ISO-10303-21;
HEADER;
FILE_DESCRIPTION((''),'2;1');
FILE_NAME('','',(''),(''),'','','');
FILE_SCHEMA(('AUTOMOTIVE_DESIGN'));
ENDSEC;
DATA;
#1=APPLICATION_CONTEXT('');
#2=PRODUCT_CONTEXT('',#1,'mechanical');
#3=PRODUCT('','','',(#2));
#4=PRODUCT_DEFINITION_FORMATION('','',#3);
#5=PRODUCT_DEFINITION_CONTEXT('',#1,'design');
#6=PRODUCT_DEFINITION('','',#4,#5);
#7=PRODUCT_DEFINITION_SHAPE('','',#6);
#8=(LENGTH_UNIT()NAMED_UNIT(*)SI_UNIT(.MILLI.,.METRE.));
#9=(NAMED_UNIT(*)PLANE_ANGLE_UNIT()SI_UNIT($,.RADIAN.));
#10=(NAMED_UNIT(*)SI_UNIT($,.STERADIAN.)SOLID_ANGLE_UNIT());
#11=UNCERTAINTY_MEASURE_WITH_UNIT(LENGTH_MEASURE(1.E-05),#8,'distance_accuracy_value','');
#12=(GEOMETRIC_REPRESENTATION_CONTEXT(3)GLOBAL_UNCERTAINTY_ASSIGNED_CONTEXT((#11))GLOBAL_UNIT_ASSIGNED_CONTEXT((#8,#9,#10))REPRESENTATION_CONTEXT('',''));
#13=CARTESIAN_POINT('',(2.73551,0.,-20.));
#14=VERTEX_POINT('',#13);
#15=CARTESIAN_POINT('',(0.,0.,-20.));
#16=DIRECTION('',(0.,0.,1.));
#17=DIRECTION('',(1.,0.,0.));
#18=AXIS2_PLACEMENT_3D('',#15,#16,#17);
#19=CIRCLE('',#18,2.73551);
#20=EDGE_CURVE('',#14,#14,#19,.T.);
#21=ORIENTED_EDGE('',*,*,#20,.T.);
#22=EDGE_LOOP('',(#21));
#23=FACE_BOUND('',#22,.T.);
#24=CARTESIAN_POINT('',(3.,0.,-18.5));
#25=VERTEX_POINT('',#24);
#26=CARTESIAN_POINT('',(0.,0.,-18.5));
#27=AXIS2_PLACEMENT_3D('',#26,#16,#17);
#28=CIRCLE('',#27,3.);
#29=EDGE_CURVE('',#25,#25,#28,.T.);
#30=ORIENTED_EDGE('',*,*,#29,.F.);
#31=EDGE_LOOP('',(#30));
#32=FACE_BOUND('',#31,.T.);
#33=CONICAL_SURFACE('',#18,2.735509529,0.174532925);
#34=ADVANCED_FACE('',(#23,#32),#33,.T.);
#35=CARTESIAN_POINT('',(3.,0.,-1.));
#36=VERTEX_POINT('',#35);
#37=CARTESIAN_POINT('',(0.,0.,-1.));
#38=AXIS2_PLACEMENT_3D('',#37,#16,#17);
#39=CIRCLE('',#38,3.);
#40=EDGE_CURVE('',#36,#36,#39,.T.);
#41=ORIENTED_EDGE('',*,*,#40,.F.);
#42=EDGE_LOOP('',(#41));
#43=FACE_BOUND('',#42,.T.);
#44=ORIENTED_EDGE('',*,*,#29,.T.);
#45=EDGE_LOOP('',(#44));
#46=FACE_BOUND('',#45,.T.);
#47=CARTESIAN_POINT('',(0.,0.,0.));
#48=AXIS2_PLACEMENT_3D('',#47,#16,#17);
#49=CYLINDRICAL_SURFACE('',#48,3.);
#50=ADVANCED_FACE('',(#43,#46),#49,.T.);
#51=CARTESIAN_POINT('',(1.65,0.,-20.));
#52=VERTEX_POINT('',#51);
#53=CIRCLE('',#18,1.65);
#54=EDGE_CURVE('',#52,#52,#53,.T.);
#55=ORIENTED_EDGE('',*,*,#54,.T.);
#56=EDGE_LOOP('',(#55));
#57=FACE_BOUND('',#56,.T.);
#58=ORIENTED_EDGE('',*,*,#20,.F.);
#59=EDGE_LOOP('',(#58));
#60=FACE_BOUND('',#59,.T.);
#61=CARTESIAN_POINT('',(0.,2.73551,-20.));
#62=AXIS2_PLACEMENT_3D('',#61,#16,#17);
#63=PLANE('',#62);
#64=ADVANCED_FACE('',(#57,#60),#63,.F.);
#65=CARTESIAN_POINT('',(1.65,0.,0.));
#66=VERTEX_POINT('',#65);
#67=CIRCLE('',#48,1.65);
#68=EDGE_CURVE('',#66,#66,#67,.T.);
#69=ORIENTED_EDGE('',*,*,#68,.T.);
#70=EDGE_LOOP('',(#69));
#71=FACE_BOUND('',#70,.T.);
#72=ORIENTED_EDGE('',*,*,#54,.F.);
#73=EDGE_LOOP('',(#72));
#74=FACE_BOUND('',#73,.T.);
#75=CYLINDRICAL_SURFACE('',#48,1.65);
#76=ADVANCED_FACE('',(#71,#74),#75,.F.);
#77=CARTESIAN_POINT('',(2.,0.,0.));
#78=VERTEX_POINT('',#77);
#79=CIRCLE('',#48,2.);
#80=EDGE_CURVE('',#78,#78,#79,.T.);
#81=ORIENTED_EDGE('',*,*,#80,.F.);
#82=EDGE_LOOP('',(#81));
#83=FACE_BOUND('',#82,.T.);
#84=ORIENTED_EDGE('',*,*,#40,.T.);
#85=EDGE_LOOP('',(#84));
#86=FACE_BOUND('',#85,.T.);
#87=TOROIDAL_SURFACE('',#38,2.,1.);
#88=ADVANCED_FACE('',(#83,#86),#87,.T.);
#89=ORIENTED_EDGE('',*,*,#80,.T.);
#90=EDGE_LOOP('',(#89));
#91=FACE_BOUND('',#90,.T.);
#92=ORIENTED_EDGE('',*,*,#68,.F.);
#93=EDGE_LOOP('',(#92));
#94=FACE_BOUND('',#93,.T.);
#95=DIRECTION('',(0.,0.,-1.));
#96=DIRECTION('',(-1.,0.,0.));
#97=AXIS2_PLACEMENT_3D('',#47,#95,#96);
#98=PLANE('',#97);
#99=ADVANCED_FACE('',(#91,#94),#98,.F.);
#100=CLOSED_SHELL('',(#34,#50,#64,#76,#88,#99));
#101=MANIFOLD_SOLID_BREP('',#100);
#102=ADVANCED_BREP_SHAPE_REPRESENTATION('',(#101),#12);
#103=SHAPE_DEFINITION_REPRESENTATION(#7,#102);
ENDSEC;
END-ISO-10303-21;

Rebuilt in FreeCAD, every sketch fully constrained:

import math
import FreeCAD as App
import Part
import Sketcher

V = App.Vector
Q = App.Units.Quantity

doc = App.newDocument("Part")
body = doc.addObject("PartDesign::Body", "Body")

# Sketch on YZ plane
sketch1 = doc.addObject("Sketcher::SketchObject", "Sketch")
body.addObject(sketch1)
sketch1.AttachmentSupport = (doc.YZ_Plane, [""])
sketch1.MapMode = "FlatFace"
sketch1.addGeometry(Part.LineSegment(V(2, 0, 0), V(0, 0, 0)), False)
sketch1.addGeometry(Part.LineSegment(V(0, 0, 0), V(0, -20, 0)), False)
sketch1.addGeometry(Part.LineSegment(V(0, -20, 0), V(2.7, -20, 0)), False)
sketch1.addGeometry(Part.LineSegment(V(2.7, -20, 0), V(3, -18.5, 0)), False)
sketch1.addGeometry(Part.LineSegment(V(3, -18.5, 0), V(3, -1, 0)), False)
sketch1.addGeometry(Part.ArcOfCircle(Part.Circle(V(2, -1, 0), V(0, 0, 1), 1), math.radians(0), math.radians(90)), False)
sketch1.addConstraint(Sketcher.Constraint("Coincident", 0, 2, 1, 1))
sketch1.addConstraint(Sketcher.Constraint("Coincident", 1, 2, 2, 1))
sketch1.addConstraint(Sketcher.Constraint("Coincident", 2, 2, 3, 1))
sketch1.addConstraint(Sketcher.Constraint("Coincident", 3, 2, 4, 1))
sketch1.addConstraint(Sketcher.Constraint("Tangent", 4, 2, 5, 1))
sketch1.addConstraint(Sketcher.Constraint("Tangent", 5, 2, 0, 1))
sketch1.addConstraint(Sketcher.Constraint("Horizontal", 0))
sketch1.addConstraint(Sketcher.Constraint("Vertical", 1))
sketch1.addConstraint(Sketcher.Constraint("Horizontal", 2))
sketch1.addConstraint(Sketcher.Constraint("Vertical", 4))
sketch1.addConstraint(Sketcher.Constraint("Coincident", 0, 2, -1, 1))
sketch1.addConstraint(Sketcher.Constraint("Radius", 5, 1.0))
sketch1.addConstraint(Sketcher.Constraint("DistanceX", 0, 2, 0, 1, 2.0))
sketch1.addConstraint(Sketcher.Constraint("DistanceY", 1, 2, 1, 1, 20.0))
sketch1.addConstraint(Sketcher.Constraint("Angle", 3, Q("80 deg")))
sketch1.addConstraint(Sketcher.Constraint("DistanceY", 4, 1, 4, 2, 17.5))
revolution = doc.addObject("PartDesign::Revolution", "Revolution")
body.addObject(revolution)
revolution.Profile = sketch1
revolution.ReferenceAxis = (sketch1, ["V_Axis"])
revolution.Angle = 360

# Sketch on XY plane
sketch2 = doc.addObject("Sketcher::SketchObject", "Sketch001")
body.addObject(sketch2)
sketch2.AttachmentSupport = (doc.XY_Plane, [""])
sketch2.MapMode = "FlatFace"
sketch2.addGeometry(Part.Circle(V(0, 0, 0), V(0, 0, 1), 1.6), False)
sketch2.addConstraint(Sketcher.Constraint("Coincident", 0, 3, -1, 1))
sketch2.addConstraint(Sketcher.Constraint("Diameter", 0, 3.3))
doc.recompute()
hole = doc.addObject("PartDesign::Hole", "Hole")
body.addObject(hole)
hole.Profile = sketch2
hole.ThreadType = "None"
hole.Diameter = 3.3
hole.DepthType = "ThroughAll"

doc.recompute()
